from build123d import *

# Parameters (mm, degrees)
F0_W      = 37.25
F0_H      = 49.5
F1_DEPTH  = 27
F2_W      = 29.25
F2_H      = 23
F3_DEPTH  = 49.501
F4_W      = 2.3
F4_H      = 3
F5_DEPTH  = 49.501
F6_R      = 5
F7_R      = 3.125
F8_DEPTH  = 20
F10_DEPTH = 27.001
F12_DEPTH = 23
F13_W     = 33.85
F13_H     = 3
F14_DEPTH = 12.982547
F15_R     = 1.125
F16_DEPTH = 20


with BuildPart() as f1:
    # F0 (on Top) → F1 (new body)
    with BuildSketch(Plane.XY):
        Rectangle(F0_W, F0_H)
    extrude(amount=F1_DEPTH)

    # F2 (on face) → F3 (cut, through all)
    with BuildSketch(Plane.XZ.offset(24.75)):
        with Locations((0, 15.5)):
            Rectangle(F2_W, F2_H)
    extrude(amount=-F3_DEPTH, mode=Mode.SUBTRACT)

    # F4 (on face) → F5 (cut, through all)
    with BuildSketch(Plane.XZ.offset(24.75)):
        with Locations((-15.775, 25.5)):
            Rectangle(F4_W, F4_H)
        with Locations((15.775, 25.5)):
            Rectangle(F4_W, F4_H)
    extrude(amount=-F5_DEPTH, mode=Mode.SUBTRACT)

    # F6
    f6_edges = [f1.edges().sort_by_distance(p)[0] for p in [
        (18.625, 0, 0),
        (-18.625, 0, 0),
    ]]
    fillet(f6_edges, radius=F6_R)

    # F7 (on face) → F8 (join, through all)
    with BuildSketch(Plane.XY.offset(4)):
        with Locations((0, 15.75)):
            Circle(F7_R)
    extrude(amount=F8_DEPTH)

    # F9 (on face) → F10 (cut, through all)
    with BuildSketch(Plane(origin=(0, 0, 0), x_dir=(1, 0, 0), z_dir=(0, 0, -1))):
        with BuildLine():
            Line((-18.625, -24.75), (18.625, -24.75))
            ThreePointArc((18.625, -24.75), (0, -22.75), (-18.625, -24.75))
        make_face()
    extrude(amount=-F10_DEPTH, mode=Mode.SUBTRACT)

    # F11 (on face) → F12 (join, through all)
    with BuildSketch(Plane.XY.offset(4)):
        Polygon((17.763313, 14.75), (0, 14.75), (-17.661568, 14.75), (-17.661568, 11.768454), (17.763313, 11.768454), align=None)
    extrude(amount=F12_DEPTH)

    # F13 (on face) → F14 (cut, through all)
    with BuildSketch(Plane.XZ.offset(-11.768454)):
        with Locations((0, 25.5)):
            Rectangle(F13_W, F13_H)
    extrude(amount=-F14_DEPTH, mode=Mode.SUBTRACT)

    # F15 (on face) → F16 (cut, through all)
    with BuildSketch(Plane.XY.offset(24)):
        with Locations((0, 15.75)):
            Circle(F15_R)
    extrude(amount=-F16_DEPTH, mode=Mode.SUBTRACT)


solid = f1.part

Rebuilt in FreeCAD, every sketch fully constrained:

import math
import FreeCAD as App
import Part
import Sketcher

V = App.Vector
Q = App.Units.Quantity


def edges_at(feature, points):
    """Names of the edges that pass closest to the given points."""
    edges = feature.Shape.Edges
    near = lambda p: min(range(len(edges)), key=lambda i: edges[i].distToShape(Part.Vertex(*p))[0])
    return sorted({f"Edge{near(p) + 1}" for p in points})

doc = App.newDocument("Part")
params = doc.addObject("Spreadsheet::Sheet", "Params")
for row, (alias, value) in enumerate([
    ("sketch1_height", "49.5 mm"),
    ("sketch1_width", "37.25 mm"),
    ("pad1_length", "27 mm"),
    ("sketch2_height", "23 mm"),
    ("sketch2_width", "29.25 mm"),
    ("sketch3_height", "3 mm"),
    ("sketch3_width", "2.3 mm"),
    ("fillet_radius", "5 mm"),
    ("sketch4_diameter", "6.25 mm"),
    ("pad2_length", "20 mm"),
    ("sketch5_width", "37.25 mm"),
    ("pad3_length", "23 mm"),
    ("sketch7_height", "3 mm"),
    ("sketch7_width", "33.85 mm"),
    ("sketch8_diameter", "2.25 mm"),
    ("pocket5_length", "20 mm"),
], start=1):
    params.set(f"A{row}", alias)
    params.set(f"B{row}", "=" + value)
    params.setAlias(f"B{row}", alias)

body = doc.addObject("PartDesign::Body", "Body")

# Sketch on XY plane
sketch1 = body.newObject("Sketcher::SketchObject", "Sketch")
sketch1.AttachmentSupport = (doc.getObject("XY_Plane"), [""])
sketch1.MapMode = "FlatFace"
sketch1.addGeometry(Part.LineSegment(V(-19, 25, 0), V(-19, -25, 0)), False)
sketch1.addGeometry(Part.LineSegment(V(-19, -25, 0), V(19, -25, 0)), False)
sketch1.addGeometry(Part.LineSegment(V(19, -25, 0), V(19, 25, 0)), False)
sketch1.addGeometry(Part.LineSegment(V(19, 25, 0), V(-19, 25, 0)), False)
sketch1.addConstraint(Sketcher.Constraint("Coincident", 0, 2, 1, 1))
sketch1.addConstraint(Sketcher.Constraint("Coincident", 1, 2, 2, 1))
sketch1.addConstraint(Sketcher.Constraint("Coincident", 2, 2, 3, 1))
sketch1.addConstraint(Sketcher.Constraint("Coincident", 3, 2, 0, 1))
sketch1.addConstraint(Sketcher.Constraint("Vertical", 0))
sketch1.addConstraint(Sketcher.Constraint("Horizontal", 1))
sketch1.addConstraint(Sketcher.Constraint("Vertical", 2))
sketch1.addConstraint(Sketcher.Constraint("Horizontal", 3))
sketch1.addConstraint(Sketcher.Constraint("Symmetric", 0, 2, 2, 2, -1, 1))
sketch1.addConstraint(Sketcher.Constraint("DistanceY", 0, 2, 0, 1, Q("49.5 mm")))
sketch1.addConstraint(Sketcher.Constraint("DistanceX", 1, 1, 1, 2, Q("37.25 mm")))
sketch1.setExpression("Constraints[9]", "Params.sketch1_height")
sketch1.setExpression("Constraints[10]", "Params.sketch1_width")
pad1 = body.newObject("PartDesign::Pad", "Pad")
pad1.Profile = sketch1
pad1.setExpression("Length", "Params.pad1_length")

# Sketch on XZ plane
sketch2 = body.newObject("Sketcher::SketchObject", "Sketch001")
sketch2.AttachmentSupport = (doc.getObject("XZ_Plane"), [""])
sketch2.MapMode = "FlatFace"
sketch2.AttachmentOffset = App.Placement(V(0, 0, 24.75), App.Rotation())
sketch2.addGeometry(Part.LineSegment(V(-15, 27, 0), V(-15, 4, 0)), False)
sketch2.addGeometry(Part.LineSegment(V(-15, 4, 0), V(15, 4, 0)), False)
sketch2.addGeometry(Part.LineSegment(V(15, 4, 0), V(15, 27, 0)), False)
sketch2.addGeometry(Part.LineSegment(V(15, 27, 0), V(-15, 27, 0)), False)
sketch2.addConstraint(Sketcher.Constraint("Coincident", 0, 2, 1, 1))
sketch2.addConstraint(Sketcher.Constraint("Coincident", 1, 2, 2, 1))
sketch2.addConstraint(Sketcher.Constraint("Coincident", 2, 2, 3, 1))
sketch2.addConstraint(Sketcher.Constraint("Coincident", 3, 2, 0, 1))
sketch2.addConstraint(Sketcher.Constraint("Vertical", 0))
sketch2.addConstraint(Sketcher.Constraint("Horizontal", 1))
sketch2.addConstraint(Sketcher.Constraint("Vertical", 2))
sketch2.addConstraint(Sketcher.Constraint("Horizontal", 3))
sketch2.addConstraint(Sketcher.Constraint("DistanceY", 0, 2, 0, 1, Q("23 mm")))
sketch2.addConstraint(Sketcher.Constraint("DistanceY", -1, 1, 0, 2, Q("4 mm")))
sketch2.addConstraint(Sketcher.Constraint("DistanceX", 1, 1, 1, 2, Q("29.25 mm")))
sketch2.addConstraint(Sketcher.Constraint("DistanceX", 0, 2, -1, 1, Q("14.625 mm")))
sketch2.setExpression("Constraints[8]", "Params.sketch2_height")
sketch2.setExpression("Constraints[10]", "Params.sketch2_width")
pocket1 = body.newObject("PartDesign::Pocket", "Pocket")
pocket1.Profile = sketch2
pocket1.Type = "ThroughAll"

# Sketch on XZ plane
sketch3 = body.newObject("Sketcher::SketchObject", "Sketch002")
sketch3.AttachmentSupport = (doc.getObject("XZ_Plane"), [""])
sketch3.MapMode = "FlatFace"
sketch3.AttachmentOffset = App.Placement(V(0, 0, 24.75), App.Rotation())
sketch3.addGeometry(Part.LineSegment(V(-16.9, 27, 0), V(-16.9, 24, 0)), False)
sketch3.addGeometry(Part.LineSegment(V(-16.9, 24, 0), V(-14.6, 24, 0)), False)
sketch3.addGeometry(Part.LineSegment(V(-14.6, 24, 0), V(-14.6, 27, 0)), False)
sketch3.addGeometry(Part.LineSegment(V(-14.6, 27, 0), V(-16.9, 27, 0)), False)
sketch3.addGeometry(Part.LineSegment(V(14.6, 27, 0), V(14.6, 24, 0)), False)
sketch3.addGeometry(Part.LineSegment(V(14.6, 24, 0), V(16.9, 24, 0)), False)
sketch3.addGeometry(Part.LineSegment(V(16.9, 24, 0), V(16.9, 27, 0)), False)
sketch3.addGeometry(Part.LineSegment(V(16.9, 27, 0), V(14.6, 27, 0)), False)
sketch3.addConstraint(Sketcher.Constraint("Coincident", 0, 2, 1, 1))
sketch3.addConstraint(Sketcher.Constraint("Coincident", 1, 2, 2, 1))
sketch3.addConstraint(Sketcher.Constraint("Coincident", 2, 2, 3, 1))
sketch3.addConstraint(Sketcher.Constraint("Coincident", 3, 2, 0, 1))
sketch3.addConstraint(Sketcher.Constraint("Coincident", 4, 2, 5, 1))
sketch3.addConstraint(Sketcher.Constraint("Coincident", 5, 2, 6, 1))
sketch3.addConstraint(Sketcher.Constraint("Coincident", 6, 2, 7, 1))
sketch3.addConstraint(Sketcher.Constraint("Coincident", 7, 2, 4, 1))
sketch3.addConstraint(Sketcher.Constraint("Vertical", 0))
sketch3.addConstraint(Sketcher.Constraint("Horizontal", 1))
sketch3.addConstraint(Sketcher.Constraint("Vertical", 2))
sketch3.addConstraint(Sketcher.Constraint("Horizontal", 3))
sketch3.addConstraint(Sketcher.Constraint("Vertical", 4))
sketch3.addConstraint(Sketcher.Constraint("Horizontal", 5))
sketch3.addConstraint(Sketcher.Constraint("Vertical", 6))
sketch3.addConstraint(Sketcher.Constraint("Horizontal", 7))
sketch3.addConstraint(Sketcher.Constraint("Symmetric", 1, 2, 4, 2, -2))
sketch3.addConstraint(Sketcher.Constraint("Symmetric", 3, 2, 6, 2, -2))
sketch3.addConstraint(Sketcher.Constraint("DistanceY", 0, 2, 0, 1, Q("3 mm")))
sketch3.addConstraint(Sketcher.Constraint("DistanceX", 1, 1, 1, 2, Q("2.3 mm")))
sketch3.addConstraint(Sketcher.Constraint("DistanceY", -1, 1, 0, 2, Q("24 mm")))
sketch3.addConstraint(Sketcher.Constraint("DistanceX", 1, 2, 4, 2, Q("29.25 mm")))
sketch3.setExpression("Constraints[18]", "Params.sketch3_height")
sketch3.setExpression("Constraints[19]", "Params.sketch3_width")
pocket2 = body.newObject("PartDesign::Pocket", "Pocket001")
pocket2.Profile = sketch3
pocket2.Type = "ThroughAll"
doc.recompute()

fillet = body.newObject("PartDesign::Fillet", "Fillet")
fillet.Base = (pocket2, edges_at(pocket2, [(18.625, 0, 0), (-18.625, 0, 0)]))
fillet.setExpression("Radius", "Params.fillet_radius")

# Sketch on XY plane
sketch4 = body.newObject("Sketcher::SketchObject", "Sketch003")
sketch4.AttachmentSupport = (doc.getObject("XY_Plane"), [""])
sketch4.MapMode = "FlatFace"
sketch4.AttachmentOffset = App.Placement(V(0, 0, 4), App.Rotation())
sketch4.addGeometry(Part.Circle(V(0, 15.8, 0), V(0, 0, 1), 3.1), False)
sketch4.addConstraint(Sketcher.Constraint("PointOnObject", 0, 3, -2))
sketch4.addConstraint(Sketcher.Constraint("Diameter", 0, Q("6.25 mm")))
sketch4.addConstraint(Sketcher.Constraint("DistanceY", -1, 1, 0, 3, Q("15.75 mm")))
sketch4.setExpression("Constraints[1]", "Params.sketch4_diameter")
pad2 = body.newObject("PartDesign::Pad", "Pad001")
pad2.Profile = sketch4
pad2.setExpression("Length", "Params.pad2_length")

# Sketch on XY plane
sketch5 = body.newObject("Sketcher::SketchObject", "Sketch004")
sketch5.AttachmentSupport = (doc.getObject("XY_Plane"), [""])
sketch5.MapMode = "FlatFace"
sketch5.addGeometry(Part.LineSegment(V(-19, 25, 0), V(19, 25, 0)), False)
sketch5.addGeometry(Part.ArcOfCircle(Part.Circle(V(0, 110, 0), V(0, 0, 1), 88), math.radians(-102), math.radians(-78)), False)
sketch5.addConstraint(Sketcher.Constraint("Coincident", 0, 1, 1, 1))
sketch5.addConstraint(Sketcher.Constraint("Coincident", 1, 2, 0, 2))
sketch5.addConstraint(Sketcher.Constraint("Horizontal", 0))
sketch5.addConstraint(Sketcher.Constraint("PointOnObject", 1, 3, -2))
sketch5.addConstraint(Sketcher.Constraint("DistanceX", 0, 1, 0, 2, Q("37.25 mm")))
sketch5.addConstraint(Sketcher.Constraint("DistanceY", -1, 1, 0, 1, Q("24.75 mm")))
sketch5.addConstraint(Sketcher.Constraint("Radius", 1, Q("87.722656 mm")))
sketch5.setExpression("Constraints[4]", "Params.sketch5_width")
pocket3 = body.newObject("PartDesign::Pocket", "Pocket002")
pocket3.Profile = sketch5
pocket3.Type = "ThroughAll"
pocket3.Reversed = True

# Sketch on XY plane
sketch6 = body.newObject("Sketcher::SketchObject", "Sketch005")
sketch6.AttachmentSupport = (doc.getObject("XY_Plane"), [""])
sketch6.MapMode = "FlatFace"
sketch6.AttachmentOffset = App.Placement(V(0, 0, 4), App.Rotation())
sketch6.addGeometry(Part.LineSegment(V(17.8, 14.8, 0), V(-17.7, 14.8, 0)), False)
sketch6.addGeometry(Part.LineSegment(V(-17.7, 14.8, 0), V(-17.7, 11.8, 0)), False)
sketch6.addGeometry(Part.LineSegment(V(-17.7, 11.8, 0), V(17.8, 11.8, 0)), False)
sketch6.addGeometry(Part.LineSegment(V(17.8, 11.8, 0), V(17.8, 14.8, 0)), False)
sketch6.addConstraint(Sketcher.Constraint("Coincident", 0, 2, 1, 1))
sketch6.addConstraint(Sketcher.Constraint("Coincident", 1, 2, 2, 1))
sketch6.addConstraint(Sketcher.Constraint("Coincident", 2, 2, 3, 1))
sketch6.addConstraint(Sketcher.Constraint("Coincident", 3, 2, 0, 1))
sketch6.addConstraint(Sketcher.Constraint("Horizontal", 0))
sketch6.addConstraint(Sketcher.Constraint("Vertical", 1))
sketch6.addConstraint(Sketcher.Constraint("Horizontal", 2))
sketch6.addConstraint(Sketcher.Constraint("Vertical", 3))
sketch6.addConstraint(Sketcher.Constraint("DistanceY", -1, 1, 0, 2, Q("14.75 mm")))
sketch6.addConstraint(Sketcher.Constraint("DistanceX", 0, 2, 0, 1, Q("35.424881 mm")))
sketch6.addConstraint(Sketcher.Constraint("DistanceY", 1, 2, 1, 1, Q("2.981546 mm")))
sketch6.addConstraint(Sketcher.Constraint("DistanceX", 0, 2, -1, 1, Q("17.661568 mm")))
pad3 = body.newObject("PartDesign::Pad", "Pad002")
pad3.Profile = sketch6
pad3.setExpression("Length", "Params.pad3_length")

# Sketch on XZ plane
sketch7 = body.newObject("Sketcher::SketchObject", "Sketch006")
sketch7.AttachmentSupport = (doc.getObject("XZ_Plane"), [""])
sketch7.MapMode = "FlatFace"
sketch7.AttachmentOffset = App.Placement(V(0, 0, -11.768454), App.Rotation())
sketch7.addGeometry(Part.LineSegment(V(-16.9, 27, 0), V(-16.9, 24, 0)), False)
sketch7.addGeometry(Part.LineSegment(V(-16.9, 24, 0), V(16.9, 24, 0)), False)
sketch7.addGeometry(Part.LineSegment(V(16.9, 24, 0), V(16.9, 27, 0)), False)
sketch7.addGeometry(Part.LineSegment(V(16.9, 27, 0), V(-16.9, 27, 0)), False)
sketch7.addConstraint(Sketcher.Constraint("Coincident", 0, 2, 1, 1))
sketch7.addConstraint(Sketcher.Constraint("Coincident", 1, 2, 2, 1))
sketch7.addConstraint(Sketcher.Constraint("Coincident", 2, 2, 3, 1))
sketch7.addConstraint(Sketcher.Constraint("Coincident", 3, 2, 0, 1))
sketch7.addConstraint(Sketcher.Constraint("Vertical", 0))
sketch7.addConstraint(Sketcher.Constraint("Horizontal", 1))
sketch7.addConstraint(Sketcher.Constraint("Vertical", 2))
sketch7.addConstraint(Sketcher.Constraint("Horizontal", 3))
sketch7.addConstraint(Sketcher.Constraint("DistanceY", 0, 2, 0, 1, Q("3 mm")))
sketch7.addConstraint(Sketcher.Constraint("DistanceY", -1, 1, 0, 2, Q("24 mm")))
sketch7.addConstraint(Sketcher.Constraint("DistanceX", 1, 1, 1, 2, Q("33.85 mm")))
sketch7.addConstraint(Sketcher.Constraint("DistanceX", 0, 2, -1, 1, Q("16.925 mm")))
sketch7.setExpression("Constraints[8]", "Params.sketch7_height")
sketch7.setExpression("Constraints[10]", "Params.sketch7_width")
pocket4 = body.newObject("PartDesign::Pocket", "Pocket003")
pocket4.Profile = sketch7
pocket4.Type = "ThroughAll"

# Sketch on XY plane
sketch8 = body.newObject("Sketcher::SketchObject", "Sketch007")
sketch8.AttachmentSupport = (doc.getObject("XY_Plane"), [""])
sketch8.MapMode = "FlatFace"
sketch8.AttachmentOffset = App.Placement(V(0, 0, 24), App.Rotation())
sketch8.addGeometry(Part.Circle(V(0, 15.8, 0), V(0, 0, 1), 1.1), False)
sketch8.addConstraint(Sketcher.Constraint("PointOnObject", 0, 3, -2))
sketch8.addConstraint(Sketcher.Constraint("Diameter", 0, Q("2.25 mm")))
sketch8.addConstraint(Sketcher.Constraint("DistanceY", -1, 1, 0, 3, Q("15.75 mm")))
sketch8.setExpression("Constraints[1]", "Params.sketch8_diameter")
pocket5 = body.newObject("PartDesign::Pocket", "Pocket004")
pocket5.Profile = sketch8
pocket5.setExpression("Length", "Params.pocket5_length")

doc.recompute()
